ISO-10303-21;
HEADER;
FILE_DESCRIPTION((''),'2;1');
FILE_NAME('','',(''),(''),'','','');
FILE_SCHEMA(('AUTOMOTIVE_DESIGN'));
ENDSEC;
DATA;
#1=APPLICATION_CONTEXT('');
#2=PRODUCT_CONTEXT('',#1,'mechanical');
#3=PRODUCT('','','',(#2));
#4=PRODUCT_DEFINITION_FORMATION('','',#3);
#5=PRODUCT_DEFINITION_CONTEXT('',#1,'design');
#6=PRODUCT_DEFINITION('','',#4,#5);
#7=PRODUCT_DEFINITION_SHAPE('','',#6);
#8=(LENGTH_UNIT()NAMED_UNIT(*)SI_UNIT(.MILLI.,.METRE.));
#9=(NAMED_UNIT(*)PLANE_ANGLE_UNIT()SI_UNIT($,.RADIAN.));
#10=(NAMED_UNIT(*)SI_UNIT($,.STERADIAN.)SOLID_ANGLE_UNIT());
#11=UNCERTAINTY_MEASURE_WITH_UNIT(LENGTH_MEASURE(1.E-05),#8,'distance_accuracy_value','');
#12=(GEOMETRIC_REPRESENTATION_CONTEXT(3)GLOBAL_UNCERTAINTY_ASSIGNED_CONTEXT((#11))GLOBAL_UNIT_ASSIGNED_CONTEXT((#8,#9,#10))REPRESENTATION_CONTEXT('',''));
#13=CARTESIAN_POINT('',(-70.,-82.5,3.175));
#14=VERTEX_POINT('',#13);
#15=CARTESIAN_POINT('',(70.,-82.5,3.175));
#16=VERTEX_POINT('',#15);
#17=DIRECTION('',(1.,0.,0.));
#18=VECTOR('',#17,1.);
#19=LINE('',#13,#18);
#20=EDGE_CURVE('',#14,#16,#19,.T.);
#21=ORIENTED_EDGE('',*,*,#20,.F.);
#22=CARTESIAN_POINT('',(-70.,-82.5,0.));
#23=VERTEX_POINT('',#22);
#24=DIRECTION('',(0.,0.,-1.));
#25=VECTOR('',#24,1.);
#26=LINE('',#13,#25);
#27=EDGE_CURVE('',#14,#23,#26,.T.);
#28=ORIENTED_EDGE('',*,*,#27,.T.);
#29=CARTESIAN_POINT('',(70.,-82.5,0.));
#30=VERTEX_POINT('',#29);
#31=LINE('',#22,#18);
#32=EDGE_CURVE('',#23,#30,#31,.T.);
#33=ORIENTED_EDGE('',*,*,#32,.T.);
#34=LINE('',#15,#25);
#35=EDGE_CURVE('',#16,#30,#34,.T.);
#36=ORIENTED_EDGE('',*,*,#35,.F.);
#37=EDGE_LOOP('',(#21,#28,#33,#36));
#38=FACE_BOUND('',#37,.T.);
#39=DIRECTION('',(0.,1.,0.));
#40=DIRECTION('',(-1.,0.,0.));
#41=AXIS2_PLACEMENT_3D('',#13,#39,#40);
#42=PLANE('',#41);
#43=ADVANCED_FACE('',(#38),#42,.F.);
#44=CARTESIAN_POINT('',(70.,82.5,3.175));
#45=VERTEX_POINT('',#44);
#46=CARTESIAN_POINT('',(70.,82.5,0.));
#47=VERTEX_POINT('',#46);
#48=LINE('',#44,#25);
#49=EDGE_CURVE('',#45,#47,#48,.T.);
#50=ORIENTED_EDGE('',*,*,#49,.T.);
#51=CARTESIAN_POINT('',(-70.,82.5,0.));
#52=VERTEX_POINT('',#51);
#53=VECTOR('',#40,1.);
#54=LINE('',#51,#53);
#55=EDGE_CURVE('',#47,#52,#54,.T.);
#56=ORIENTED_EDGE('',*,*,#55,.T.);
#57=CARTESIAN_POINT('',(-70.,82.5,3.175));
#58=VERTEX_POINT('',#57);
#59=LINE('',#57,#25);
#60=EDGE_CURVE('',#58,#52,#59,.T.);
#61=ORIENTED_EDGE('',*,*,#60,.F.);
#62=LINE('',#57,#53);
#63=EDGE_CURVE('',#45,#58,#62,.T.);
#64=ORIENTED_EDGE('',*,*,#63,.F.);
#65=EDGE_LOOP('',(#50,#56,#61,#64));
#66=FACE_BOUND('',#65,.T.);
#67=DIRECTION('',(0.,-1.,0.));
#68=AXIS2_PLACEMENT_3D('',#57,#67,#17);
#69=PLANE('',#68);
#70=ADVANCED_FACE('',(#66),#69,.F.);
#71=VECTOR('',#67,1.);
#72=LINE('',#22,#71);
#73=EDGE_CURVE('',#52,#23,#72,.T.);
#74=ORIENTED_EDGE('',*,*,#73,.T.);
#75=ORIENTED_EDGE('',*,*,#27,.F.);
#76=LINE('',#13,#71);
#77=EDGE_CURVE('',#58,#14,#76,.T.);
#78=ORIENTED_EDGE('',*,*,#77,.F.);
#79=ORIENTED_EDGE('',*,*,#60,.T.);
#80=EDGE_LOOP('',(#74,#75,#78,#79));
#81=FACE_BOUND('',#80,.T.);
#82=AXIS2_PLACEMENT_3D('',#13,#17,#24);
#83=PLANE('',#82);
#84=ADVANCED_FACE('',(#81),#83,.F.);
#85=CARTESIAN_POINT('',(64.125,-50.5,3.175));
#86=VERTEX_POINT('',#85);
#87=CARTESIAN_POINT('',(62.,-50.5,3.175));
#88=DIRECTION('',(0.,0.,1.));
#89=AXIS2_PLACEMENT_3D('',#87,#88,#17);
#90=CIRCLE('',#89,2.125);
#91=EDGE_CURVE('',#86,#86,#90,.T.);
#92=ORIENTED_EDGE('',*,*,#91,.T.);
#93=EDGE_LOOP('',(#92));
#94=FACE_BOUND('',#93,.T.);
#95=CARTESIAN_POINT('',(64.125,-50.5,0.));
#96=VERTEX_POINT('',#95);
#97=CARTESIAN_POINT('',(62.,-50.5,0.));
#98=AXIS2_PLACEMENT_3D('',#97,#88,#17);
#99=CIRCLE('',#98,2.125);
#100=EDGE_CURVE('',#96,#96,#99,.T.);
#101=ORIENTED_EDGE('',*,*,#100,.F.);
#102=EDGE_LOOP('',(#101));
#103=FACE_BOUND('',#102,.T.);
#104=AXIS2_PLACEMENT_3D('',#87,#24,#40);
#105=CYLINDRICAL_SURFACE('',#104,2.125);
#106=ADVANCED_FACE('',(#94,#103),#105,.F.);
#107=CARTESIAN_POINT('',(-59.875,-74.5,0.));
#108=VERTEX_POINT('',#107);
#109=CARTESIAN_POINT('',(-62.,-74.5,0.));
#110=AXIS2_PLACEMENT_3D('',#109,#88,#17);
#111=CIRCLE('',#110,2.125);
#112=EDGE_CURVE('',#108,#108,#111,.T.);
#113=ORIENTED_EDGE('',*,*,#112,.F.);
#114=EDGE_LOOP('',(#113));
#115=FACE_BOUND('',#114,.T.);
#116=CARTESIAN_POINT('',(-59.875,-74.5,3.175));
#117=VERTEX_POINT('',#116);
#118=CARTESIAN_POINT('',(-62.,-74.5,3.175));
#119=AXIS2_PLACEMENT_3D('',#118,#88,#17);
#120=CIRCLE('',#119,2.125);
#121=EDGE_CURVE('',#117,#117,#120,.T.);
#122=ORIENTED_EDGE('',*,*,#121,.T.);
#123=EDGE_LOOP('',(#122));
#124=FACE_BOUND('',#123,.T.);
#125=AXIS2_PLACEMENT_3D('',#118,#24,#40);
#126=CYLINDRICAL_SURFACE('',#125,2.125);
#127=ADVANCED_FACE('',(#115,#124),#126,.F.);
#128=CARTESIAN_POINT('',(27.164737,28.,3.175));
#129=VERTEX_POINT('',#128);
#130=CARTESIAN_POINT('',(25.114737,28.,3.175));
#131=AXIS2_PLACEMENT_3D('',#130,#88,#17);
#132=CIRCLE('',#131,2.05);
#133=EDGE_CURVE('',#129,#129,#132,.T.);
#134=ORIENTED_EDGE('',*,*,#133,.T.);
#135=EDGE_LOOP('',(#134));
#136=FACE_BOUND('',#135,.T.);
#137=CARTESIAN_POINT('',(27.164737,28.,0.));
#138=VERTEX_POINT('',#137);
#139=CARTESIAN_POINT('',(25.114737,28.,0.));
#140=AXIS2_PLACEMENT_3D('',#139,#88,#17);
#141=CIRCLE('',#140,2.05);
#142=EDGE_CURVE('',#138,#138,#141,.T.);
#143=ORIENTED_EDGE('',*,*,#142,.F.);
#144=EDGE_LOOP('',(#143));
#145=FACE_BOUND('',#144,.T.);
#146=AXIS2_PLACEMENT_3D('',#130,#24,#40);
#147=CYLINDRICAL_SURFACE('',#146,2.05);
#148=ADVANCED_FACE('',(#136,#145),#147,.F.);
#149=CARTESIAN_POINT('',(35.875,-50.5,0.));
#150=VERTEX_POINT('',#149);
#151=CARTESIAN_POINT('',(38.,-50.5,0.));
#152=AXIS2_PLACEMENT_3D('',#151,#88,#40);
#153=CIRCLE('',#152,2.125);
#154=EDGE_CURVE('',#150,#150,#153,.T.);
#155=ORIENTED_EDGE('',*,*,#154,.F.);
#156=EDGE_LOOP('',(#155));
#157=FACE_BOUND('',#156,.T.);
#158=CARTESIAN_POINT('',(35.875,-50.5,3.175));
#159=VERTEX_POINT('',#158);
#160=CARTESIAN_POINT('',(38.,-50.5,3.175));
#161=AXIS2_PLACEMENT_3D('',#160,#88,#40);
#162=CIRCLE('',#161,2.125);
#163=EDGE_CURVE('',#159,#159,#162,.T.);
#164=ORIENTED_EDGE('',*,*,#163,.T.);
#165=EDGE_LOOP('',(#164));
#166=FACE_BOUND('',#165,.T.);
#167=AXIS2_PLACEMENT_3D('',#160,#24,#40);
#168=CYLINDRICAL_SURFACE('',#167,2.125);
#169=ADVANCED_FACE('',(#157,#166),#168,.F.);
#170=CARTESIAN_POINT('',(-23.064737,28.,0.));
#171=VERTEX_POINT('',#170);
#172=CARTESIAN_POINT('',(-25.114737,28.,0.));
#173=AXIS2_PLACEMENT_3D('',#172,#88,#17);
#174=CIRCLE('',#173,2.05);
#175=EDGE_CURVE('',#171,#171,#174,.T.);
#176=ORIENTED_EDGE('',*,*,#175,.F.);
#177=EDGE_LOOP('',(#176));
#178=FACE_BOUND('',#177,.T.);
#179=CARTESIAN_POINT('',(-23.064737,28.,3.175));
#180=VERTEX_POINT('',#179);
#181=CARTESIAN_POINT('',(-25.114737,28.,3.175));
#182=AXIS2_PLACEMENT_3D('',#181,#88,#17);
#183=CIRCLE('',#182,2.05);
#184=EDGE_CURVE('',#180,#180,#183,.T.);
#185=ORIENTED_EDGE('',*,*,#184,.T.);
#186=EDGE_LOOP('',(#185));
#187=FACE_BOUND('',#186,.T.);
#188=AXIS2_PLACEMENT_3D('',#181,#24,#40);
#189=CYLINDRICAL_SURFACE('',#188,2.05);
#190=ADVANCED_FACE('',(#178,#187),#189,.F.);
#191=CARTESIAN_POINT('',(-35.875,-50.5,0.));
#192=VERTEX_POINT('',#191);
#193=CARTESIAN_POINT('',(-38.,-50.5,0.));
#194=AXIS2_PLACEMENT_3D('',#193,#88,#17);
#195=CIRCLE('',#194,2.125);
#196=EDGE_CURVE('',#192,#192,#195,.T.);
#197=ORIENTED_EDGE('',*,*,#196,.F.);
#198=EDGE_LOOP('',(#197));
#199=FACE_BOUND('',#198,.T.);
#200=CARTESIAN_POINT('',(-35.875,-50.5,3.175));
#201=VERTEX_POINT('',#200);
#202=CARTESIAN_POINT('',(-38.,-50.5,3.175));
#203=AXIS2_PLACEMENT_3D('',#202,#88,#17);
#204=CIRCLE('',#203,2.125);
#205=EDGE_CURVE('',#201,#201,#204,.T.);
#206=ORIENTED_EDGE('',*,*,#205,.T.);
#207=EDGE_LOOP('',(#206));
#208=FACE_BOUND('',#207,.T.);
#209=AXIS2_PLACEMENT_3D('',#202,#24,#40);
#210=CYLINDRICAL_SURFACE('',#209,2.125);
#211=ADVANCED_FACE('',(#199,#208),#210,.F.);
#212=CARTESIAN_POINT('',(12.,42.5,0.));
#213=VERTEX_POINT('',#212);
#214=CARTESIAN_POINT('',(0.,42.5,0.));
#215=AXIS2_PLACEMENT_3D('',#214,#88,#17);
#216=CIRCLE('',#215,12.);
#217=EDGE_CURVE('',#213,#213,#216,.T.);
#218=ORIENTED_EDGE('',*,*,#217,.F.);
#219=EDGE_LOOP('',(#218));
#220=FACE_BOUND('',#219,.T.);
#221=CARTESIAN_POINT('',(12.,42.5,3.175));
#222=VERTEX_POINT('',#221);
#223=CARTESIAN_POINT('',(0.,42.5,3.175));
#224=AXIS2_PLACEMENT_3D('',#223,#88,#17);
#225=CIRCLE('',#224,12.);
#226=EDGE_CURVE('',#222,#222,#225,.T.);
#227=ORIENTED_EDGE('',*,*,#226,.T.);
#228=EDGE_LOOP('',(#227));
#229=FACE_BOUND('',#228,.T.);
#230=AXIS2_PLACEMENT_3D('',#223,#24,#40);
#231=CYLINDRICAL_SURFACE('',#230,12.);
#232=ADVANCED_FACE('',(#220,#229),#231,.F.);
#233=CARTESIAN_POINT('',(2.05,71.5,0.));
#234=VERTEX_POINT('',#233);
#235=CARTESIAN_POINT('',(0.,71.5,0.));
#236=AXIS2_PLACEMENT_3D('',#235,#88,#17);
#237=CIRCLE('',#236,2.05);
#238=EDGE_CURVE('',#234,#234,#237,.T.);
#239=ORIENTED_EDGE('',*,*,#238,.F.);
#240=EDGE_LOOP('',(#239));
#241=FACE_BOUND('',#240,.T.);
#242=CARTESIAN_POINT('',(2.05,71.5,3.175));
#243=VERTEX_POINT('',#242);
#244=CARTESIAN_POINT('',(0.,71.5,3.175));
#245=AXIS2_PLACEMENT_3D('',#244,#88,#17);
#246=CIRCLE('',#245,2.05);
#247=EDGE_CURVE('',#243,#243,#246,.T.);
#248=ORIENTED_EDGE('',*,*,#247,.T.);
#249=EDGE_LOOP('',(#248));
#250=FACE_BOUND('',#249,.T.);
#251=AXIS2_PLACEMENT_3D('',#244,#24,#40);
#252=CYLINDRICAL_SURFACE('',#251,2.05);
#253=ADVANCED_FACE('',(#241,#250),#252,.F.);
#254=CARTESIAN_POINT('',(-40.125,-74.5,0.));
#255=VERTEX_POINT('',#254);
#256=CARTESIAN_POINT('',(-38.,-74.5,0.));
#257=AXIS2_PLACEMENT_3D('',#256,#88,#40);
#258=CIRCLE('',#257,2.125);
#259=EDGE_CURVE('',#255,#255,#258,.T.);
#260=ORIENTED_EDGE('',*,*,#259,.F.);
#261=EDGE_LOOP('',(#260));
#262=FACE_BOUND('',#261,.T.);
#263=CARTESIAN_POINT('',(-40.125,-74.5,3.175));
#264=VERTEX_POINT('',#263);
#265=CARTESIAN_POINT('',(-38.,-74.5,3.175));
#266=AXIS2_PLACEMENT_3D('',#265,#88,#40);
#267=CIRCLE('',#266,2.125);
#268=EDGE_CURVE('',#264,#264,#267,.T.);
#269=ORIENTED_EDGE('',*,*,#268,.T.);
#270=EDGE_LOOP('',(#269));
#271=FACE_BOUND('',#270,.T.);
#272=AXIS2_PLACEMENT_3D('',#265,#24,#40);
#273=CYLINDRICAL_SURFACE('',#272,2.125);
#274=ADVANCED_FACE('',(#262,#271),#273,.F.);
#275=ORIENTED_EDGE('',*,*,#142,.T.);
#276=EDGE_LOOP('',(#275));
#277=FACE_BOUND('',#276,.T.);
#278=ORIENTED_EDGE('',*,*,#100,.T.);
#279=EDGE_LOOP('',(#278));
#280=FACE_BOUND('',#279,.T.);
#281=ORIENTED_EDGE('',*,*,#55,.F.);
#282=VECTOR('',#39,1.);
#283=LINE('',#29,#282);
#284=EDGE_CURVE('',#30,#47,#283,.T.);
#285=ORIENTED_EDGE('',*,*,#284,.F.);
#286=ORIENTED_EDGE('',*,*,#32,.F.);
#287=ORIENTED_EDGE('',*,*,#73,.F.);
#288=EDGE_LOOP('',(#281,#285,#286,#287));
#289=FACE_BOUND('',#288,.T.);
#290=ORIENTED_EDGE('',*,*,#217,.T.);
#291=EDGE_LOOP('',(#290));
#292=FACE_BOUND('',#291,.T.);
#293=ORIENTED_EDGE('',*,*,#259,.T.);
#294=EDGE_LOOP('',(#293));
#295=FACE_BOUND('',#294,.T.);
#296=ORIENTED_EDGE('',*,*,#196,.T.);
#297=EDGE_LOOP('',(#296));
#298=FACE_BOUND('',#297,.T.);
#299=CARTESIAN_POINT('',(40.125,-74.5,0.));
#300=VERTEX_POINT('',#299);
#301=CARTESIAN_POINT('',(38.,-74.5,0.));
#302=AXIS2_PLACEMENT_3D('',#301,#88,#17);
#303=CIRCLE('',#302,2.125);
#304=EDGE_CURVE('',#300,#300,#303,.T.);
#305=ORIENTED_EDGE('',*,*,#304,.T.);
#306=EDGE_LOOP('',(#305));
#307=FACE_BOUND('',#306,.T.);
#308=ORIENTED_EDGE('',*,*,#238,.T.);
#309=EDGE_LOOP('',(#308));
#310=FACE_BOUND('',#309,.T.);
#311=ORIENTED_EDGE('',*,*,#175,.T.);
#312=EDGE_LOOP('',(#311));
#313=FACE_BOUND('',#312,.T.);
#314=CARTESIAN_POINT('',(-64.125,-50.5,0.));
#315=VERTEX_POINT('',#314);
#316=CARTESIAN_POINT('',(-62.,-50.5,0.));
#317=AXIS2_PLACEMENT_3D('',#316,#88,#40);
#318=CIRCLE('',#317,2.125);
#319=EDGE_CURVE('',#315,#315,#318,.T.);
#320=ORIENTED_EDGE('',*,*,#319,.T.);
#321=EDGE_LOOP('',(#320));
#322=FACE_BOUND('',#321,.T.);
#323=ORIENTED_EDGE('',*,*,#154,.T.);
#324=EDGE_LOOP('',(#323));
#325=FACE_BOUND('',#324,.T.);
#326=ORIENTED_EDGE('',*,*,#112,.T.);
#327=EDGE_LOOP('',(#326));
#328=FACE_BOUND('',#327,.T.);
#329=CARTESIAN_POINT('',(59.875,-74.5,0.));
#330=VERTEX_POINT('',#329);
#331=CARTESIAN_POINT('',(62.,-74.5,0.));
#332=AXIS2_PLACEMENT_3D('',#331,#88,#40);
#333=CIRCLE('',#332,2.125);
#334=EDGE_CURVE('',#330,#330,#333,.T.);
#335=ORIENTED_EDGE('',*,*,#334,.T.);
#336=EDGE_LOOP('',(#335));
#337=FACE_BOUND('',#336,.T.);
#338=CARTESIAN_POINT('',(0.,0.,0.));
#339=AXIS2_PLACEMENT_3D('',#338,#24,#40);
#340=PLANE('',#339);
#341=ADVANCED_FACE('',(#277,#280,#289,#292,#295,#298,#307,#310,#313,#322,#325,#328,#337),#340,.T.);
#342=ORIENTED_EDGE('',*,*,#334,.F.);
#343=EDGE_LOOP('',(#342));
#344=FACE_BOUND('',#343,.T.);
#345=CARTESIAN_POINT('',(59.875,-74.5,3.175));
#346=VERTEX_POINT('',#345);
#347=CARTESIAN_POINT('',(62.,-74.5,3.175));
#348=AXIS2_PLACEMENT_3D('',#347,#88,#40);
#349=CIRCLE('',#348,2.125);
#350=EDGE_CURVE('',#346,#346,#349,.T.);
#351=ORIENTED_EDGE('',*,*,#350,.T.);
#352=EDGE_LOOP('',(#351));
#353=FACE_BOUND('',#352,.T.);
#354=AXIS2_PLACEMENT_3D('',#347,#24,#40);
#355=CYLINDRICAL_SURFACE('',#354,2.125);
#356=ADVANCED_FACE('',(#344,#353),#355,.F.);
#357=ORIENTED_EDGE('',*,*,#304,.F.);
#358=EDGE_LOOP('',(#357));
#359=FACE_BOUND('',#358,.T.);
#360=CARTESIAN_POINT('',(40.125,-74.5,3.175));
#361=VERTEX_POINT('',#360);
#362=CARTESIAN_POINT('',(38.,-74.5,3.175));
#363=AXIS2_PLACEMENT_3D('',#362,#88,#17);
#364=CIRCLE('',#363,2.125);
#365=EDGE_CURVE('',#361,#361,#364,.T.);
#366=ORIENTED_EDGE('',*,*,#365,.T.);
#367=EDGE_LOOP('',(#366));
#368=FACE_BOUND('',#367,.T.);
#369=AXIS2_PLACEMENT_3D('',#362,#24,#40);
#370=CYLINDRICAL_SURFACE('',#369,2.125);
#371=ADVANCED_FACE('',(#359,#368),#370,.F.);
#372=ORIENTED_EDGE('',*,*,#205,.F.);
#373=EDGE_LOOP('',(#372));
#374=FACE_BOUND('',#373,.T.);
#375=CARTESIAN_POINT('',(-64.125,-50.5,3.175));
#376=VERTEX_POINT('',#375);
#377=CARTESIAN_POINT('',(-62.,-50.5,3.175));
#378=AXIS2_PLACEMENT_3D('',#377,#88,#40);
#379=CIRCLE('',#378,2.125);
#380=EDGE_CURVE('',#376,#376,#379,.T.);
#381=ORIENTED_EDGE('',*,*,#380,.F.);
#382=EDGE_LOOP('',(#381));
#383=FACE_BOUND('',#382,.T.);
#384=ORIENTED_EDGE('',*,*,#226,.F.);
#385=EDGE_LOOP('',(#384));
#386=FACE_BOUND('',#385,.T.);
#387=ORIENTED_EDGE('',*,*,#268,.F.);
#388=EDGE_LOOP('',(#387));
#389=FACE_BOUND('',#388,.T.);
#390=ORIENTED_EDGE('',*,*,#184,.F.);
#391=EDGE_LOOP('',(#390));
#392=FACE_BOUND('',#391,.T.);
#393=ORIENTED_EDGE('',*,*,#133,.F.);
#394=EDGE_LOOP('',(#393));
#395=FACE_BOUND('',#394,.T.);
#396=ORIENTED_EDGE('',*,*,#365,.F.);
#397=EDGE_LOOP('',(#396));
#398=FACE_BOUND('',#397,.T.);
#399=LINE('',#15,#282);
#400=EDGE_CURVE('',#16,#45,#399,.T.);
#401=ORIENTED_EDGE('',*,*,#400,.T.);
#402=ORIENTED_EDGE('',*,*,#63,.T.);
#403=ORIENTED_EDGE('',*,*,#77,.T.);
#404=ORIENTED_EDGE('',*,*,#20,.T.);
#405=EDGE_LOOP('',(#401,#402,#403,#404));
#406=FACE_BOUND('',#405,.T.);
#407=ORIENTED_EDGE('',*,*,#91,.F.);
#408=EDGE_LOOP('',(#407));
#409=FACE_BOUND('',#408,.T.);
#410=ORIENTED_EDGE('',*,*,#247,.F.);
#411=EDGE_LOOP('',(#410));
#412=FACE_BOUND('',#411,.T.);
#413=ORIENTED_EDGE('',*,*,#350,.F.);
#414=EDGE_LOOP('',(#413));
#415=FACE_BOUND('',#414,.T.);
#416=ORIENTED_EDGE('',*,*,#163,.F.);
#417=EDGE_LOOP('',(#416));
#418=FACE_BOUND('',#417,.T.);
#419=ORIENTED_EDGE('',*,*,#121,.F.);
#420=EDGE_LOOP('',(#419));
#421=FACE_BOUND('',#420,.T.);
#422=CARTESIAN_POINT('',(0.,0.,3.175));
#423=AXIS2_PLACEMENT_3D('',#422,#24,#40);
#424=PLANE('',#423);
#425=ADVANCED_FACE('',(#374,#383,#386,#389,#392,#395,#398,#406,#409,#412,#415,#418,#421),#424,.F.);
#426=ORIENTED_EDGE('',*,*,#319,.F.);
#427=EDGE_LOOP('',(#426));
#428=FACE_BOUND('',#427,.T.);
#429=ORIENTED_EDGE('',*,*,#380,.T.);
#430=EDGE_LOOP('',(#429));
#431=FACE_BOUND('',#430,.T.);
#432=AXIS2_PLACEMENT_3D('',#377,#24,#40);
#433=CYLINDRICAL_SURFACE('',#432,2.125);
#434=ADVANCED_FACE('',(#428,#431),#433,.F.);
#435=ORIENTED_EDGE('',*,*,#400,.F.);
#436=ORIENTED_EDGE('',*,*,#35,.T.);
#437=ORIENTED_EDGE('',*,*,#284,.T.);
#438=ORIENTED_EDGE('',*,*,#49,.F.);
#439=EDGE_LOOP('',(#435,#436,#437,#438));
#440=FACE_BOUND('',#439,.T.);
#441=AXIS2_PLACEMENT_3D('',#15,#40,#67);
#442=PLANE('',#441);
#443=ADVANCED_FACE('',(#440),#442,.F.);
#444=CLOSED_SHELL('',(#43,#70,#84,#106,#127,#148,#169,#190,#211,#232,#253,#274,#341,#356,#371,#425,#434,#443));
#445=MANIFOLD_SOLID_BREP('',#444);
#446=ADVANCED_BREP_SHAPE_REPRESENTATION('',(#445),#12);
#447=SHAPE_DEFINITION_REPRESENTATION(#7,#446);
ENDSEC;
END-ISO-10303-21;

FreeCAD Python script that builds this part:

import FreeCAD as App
import Part
import Sketcher

V = App.Vector


def add_polygon(sketch, points):
    """Adds a closed chain of lines whose ends are joined by coincident constraints."""
    first, n = sketch.GeometryCount, len(points)
    for a, b in zip(points, points[1:] + points[:1]):
        sketch.addGeometry(Part.LineSegment(App.Vector(*a, 0), App.Vector(*b, 0)), False)
    for i in range(n):
        sketch.addConstraint(Sketcher.Constraint("Coincident", first + i, 2, first + (i + 1) % n, 1))

doc = App.newDocument("Part")
body = doc.addObject("PartDesign::Body", "Body")

# Sketch on XY plane
sketch1 = body.newObject("Sketcher::SketchObject", "Sketch")
sketch1.AttachmentSupport = (doc.getObject("XY_Plane"), [""])
sketch1.MapMode = "FlatFace"
add_polygon(sketch1, [(-70, 82.5), (-70, -82.5), (70, -82.5), (70, 82.5)])  # lines 0-3
sketch1.addGeometry(Part.Circle(V(-62, -74.5, 0), V(0, 0, 1), 2.1), False)  # 4
sketch1.addGeometry(Part.Circle(V(-38, -74.5, 0), V(0, 0, 1), 2.1), False)  # 5
sketch1.addGeometry(Part.Circle(V(-62, -50.5, 0), V(0, 0, 1), 2.1), False)  # 6
sketch1.addGeometry(Part.Circle(V(-38, -50.5, 0), V(0, 0, 1), 2.1), False)  # 7
sketch1.addGeometry(Part.Circle(V(38, -74.5, 0), V(0, 0, 1), 2.1), False)  # 8
sketch1.addGeometry(Part.Circle(V(62, -74.5, 0), V(0, 0, 1), 2.1), False)  # 9
sketch1.addGeometry(Part.Circle(V(38, -50.5, 0), V(0, 0, 1), 2.1), False)  # 10
sketch1.addGeometry(Part.Circle(V(62, -50.5, 0), V(0, 0, 1), 2.1), False)  # 11
sketch1.addGeometry(Part.Circle(V(-25.1, 28, 0), V(0, 0, 1), 2), False)  # 12
sketch1.addGeometry(Part.Circle(V(25.1, 28, 0), V(0, 0, 1), 2), False)  # 13
sketch1.addGeometry(Part.Circle(V(0, 42.5, 0), V(0, 0, 1), 12), False)  # 14
sketch1.addGeometry(Part.Circle(V(0, 71.5, 0), V(0, 0, 1), 2), False)  # 15
sketch1.addConstraint(Sketcher.Constraint("Vertical", 0))
sketch1.addConstraint(Sketcher.Constraint("Horizontal", 1))
sketch1.addConstraint(Sketcher.Constraint("Vertical", 2))
sketch1.addConstraint(Sketcher.Constraint("Horizontal", 3))
sketch1.addConstraint(Sketcher.Constraint("Equal", 4, 5))
sketch1.addConstraint(Sketcher.Constraint("Equal", 5, 6))
sketch1.addConstraint(Sketcher.Constraint("Equal", 6, 7))
sketch1.addConstraint(Sketcher.Constraint("Equal", 7, 8))
sketch1.addConstraint(Sketcher.Constraint("Equal", 8, 9))
sketch1.addConstraint(Sketcher.Constraint("Equal", 9, 10))
sketch1.addConstraint(Sketcher.Constraint("Equal", 10, 11))
sketch1.addConstraint(Sketcher.Constraint("Equal", 12, 13))
sketch1.addConstraint(Sketcher.Constraint("Equal", 13, 15))
sketch1.addConstraint(Sketcher.Constraint("Symmetric", 0, 2, 2, 2, -1, 1))
sketch1.addConstraint(Sketcher.Constraint("Symmetric", 5, 3, 8, 3, -2))
sketch1.addConstraint(Sketcher.Constraint("Symmetric", 4, 3, 9, 3, -2))
sketch1.addConstraint(Sketcher.Constraint("Symmetric", 7, 3, 10, 3, -2))
sketch1.addConstraint(Sketcher.Constraint("Symmetric", 6, 3, 11, 3, -2))
sketch1.addConstraint(Sketcher.Constraint("Symmetric", 12, 3, 13, 3, -2))
sketch1.addConstraint(Sketcher.Constraint("PointOnObject", 14, 3, -2))
sketch1.addConstraint(Sketcher.Constraint("PointOnObject", 15, 3, -2))
sketch1.addConstraint(Sketcher.Constraint("Horizontal", 4, 3, 5, 3))
sketch1.addConstraint(Sketcher.Constraint("Horizontal", 6, 3, 7, 3))
sketch1.addConstraint(Sketcher.Constraint("Vertical", 4, 3, 6, 3))
sketch1.addConstraint(Sketcher.Constraint("Vertical", 5, 3, 7, 3))
sketch1.addConstraint(Sketcher.Constraint("Diameter", 14, 24.0))
sketch1.addConstraint(Sketcher.Constraint("Diameter", 12, 4.1))
sketch1.addConstraint(Sketcher.Constraint("Diameter", 4, 4.25))
sketch1.addConstraint(Sketcher.Constraint("DistanceX", 1, 1, 1, 2, 140.0))
sketch1.addConstraint(Sketcher.Constraint("DistanceY", 0, 2, 0, 1, 165.0))
sketch1.addConstraint(Sketcher.Constraint("DistanceX", 4, 3, -1, 1, 62.0))
sketch1.addConstraint(Sketcher.Constraint("DistanceX", 5, 3, -1, 1, 38.0))
sketch1.addConstraint(Sketcher.Constraint("DistanceY", -1, 1, 12, 3, 28.0))
sketch1.addConstraint(Sketcher.Constraint("DistanceY", 4, 3, 6, 3, 24.0))
sketch1.addConstraint(Sketcher.Constraint("DistanceY", 7, 3, 14, 3, 93.0))
sketch1.addConstraint(Sketcher.Constraint("DistanceY", 14, 3, 15, 3, 29.0))
sketch1.addConstraint(Sketcher.Constraint("DistanceY", 0, 2, 4, 3, 8.0))
sketch1.addConstraint(Sketcher.Constraint("DistanceX", 12, 3, -1, 1, 25.114737))
pad1 = body.newObject("PartDesign::Pad", "Pad")
pad1.Profile = sketch1
pad1.Length = 3.175

doc.recompute()
